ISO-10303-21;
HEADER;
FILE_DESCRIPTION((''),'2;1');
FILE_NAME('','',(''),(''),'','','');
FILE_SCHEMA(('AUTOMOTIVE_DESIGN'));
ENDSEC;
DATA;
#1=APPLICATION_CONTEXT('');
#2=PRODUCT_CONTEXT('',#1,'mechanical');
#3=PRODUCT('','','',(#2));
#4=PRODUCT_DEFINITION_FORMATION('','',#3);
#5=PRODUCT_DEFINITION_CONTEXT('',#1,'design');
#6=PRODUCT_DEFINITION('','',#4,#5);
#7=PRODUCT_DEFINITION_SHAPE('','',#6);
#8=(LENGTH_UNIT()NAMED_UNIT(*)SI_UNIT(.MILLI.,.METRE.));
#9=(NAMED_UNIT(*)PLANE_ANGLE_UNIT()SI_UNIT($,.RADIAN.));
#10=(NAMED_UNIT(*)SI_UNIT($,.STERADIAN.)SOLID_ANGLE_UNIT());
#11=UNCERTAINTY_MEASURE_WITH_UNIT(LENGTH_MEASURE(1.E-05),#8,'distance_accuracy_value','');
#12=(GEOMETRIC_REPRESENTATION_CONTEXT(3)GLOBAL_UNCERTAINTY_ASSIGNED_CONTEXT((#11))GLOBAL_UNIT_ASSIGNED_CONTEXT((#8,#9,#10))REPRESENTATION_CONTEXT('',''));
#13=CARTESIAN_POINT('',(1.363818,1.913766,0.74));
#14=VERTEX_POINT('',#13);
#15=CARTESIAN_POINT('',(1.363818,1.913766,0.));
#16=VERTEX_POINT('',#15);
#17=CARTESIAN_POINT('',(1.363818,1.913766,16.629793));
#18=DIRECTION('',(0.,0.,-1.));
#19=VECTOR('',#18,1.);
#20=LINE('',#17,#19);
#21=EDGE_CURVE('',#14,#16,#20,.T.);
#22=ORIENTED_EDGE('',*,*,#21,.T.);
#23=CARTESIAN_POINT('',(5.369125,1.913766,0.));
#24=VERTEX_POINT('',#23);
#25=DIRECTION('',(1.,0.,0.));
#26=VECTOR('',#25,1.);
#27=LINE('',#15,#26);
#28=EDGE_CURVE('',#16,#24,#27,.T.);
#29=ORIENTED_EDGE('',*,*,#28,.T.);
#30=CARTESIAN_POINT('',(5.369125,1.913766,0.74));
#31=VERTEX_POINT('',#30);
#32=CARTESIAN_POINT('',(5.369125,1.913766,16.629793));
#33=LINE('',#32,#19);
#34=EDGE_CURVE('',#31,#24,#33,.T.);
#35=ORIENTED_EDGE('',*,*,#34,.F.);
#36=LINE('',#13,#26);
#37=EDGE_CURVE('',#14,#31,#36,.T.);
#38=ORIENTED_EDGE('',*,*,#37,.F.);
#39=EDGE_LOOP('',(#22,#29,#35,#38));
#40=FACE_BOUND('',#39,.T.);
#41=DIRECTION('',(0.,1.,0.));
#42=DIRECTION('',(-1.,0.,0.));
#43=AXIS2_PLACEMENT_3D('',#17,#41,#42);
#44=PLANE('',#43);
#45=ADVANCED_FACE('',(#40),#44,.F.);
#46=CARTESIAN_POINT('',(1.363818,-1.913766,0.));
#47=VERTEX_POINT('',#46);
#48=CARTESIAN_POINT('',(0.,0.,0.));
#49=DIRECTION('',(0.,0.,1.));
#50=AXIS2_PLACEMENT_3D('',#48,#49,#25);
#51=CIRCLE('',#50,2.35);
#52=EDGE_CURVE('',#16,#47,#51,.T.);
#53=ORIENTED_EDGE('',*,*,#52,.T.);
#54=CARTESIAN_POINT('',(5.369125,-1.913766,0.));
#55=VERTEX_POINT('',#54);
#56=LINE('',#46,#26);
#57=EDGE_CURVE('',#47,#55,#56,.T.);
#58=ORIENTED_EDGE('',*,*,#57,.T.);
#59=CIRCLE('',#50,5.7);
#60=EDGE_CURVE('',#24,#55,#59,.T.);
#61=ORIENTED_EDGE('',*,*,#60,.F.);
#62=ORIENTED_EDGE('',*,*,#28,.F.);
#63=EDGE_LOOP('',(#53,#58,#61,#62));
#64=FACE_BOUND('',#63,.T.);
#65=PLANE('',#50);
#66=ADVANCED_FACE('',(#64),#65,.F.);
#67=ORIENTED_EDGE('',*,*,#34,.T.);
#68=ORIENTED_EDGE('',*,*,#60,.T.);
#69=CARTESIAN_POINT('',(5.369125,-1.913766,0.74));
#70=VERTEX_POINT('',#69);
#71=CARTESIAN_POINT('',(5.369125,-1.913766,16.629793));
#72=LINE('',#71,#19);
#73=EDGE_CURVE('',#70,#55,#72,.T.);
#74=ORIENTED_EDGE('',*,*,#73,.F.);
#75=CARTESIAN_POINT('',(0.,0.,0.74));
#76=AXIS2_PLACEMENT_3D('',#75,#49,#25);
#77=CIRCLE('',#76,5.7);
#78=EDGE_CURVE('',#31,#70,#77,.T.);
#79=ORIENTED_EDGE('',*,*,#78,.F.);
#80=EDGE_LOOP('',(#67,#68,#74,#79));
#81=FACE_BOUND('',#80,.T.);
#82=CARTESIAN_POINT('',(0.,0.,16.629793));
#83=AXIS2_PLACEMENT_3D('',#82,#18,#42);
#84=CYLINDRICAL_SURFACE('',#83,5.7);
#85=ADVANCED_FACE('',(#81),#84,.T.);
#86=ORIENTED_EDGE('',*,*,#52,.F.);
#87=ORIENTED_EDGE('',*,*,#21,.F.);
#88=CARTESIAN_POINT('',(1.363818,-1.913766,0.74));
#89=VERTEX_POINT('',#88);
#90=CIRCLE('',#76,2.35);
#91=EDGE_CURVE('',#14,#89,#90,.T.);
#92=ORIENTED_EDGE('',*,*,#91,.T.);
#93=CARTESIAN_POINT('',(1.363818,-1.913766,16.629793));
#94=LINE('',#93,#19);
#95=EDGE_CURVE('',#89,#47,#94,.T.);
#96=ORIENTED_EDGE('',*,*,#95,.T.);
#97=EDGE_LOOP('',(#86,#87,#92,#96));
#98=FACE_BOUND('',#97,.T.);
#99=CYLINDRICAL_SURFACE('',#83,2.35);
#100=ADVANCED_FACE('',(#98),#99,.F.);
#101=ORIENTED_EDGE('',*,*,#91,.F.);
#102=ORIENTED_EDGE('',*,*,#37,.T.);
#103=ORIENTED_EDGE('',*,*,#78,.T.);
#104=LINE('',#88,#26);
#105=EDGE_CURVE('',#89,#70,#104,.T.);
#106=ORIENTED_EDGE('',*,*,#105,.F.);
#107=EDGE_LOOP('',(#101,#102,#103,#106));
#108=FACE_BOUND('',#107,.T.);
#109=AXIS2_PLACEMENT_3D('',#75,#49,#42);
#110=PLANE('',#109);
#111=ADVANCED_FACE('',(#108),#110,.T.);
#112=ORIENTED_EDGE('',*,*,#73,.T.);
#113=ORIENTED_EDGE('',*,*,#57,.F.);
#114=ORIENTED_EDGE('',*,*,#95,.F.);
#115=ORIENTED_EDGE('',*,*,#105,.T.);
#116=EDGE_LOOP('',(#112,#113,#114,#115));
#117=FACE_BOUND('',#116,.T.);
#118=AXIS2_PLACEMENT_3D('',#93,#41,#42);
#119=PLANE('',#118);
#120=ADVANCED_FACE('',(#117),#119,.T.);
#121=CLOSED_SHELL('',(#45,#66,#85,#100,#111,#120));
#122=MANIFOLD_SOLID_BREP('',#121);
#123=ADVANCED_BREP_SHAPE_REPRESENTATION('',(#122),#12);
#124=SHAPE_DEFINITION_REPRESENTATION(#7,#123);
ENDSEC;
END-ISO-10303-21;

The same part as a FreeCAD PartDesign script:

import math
import FreeCAD as App
import Part
import Sketcher

doc = App.newDocument("Part")
body = doc.addObject("PartDesign::Body", "Body")

# Sketch on XY plane
sketch1 = body.newObject("Sketcher::SketchObject", "Sketch")
sketch1.AttachmentSupport = (doc.getObject("XY_Plane"), [""])
sketch1.MapMode = "FlatFace"
sketch1.addGeometry([
    Part.LineSegment(App.Vector(1.4, 1.9, 0), App.Vector(5.4, 1.9, 0)),
    Part.ArcOfCircle(Part.Circle(App.Vector(0, 0, 0), App.Vector(0, 0, 1), 5.7), math.radians(20), math.radians(340)),
    Part.LineSegment(App.Vector(5.4, -1.9, 0), App.Vector(1.4, -1.9, 0)),
    Part.ArcOfCircle(Part.Circle(App.Vector(0, 0, 0), App.Vector(0, 0, 1), 2.4), math.radians(55), math.radians(305)),
], False)
sketch1.addConstraint([
    Sketcher.Constraint("Coincident", 0, 2, 1, 1),
    Sketcher.Constraint("Coincident", 1, 2, 2, 1),
    Sketcher.Constraint("Coincident", 2, 2, 3, 2),
    Sketcher.Constraint("Coincident", 3, 1, 0, 1),
    Sketcher.Constraint("Horizontal", 0),
    Sketcher.Constraint("Horizontal", 2),
    Sketcher.Constraint("Coincident", 1, 3, -1, 1),
    Sketcher.Constraint("Coincident", 3, 3, -1, 1),
    Sketcher.Constraint("Vertical", 0, 2, 1, 2),
    Sketcher.Constraint("Radius", 1, 5.7),
    Sketcher.Constraint("Radius", 3, 2.35),
    Sketcher.Constraint("DistanceX", 0, 1, 0, 2, 4.005307),
])
pad1 = body.newObject("PartDesign::Pad", "Pad")
pad1.Profile = sketch1
pad1.Length = 0.74

doc.recompute()
